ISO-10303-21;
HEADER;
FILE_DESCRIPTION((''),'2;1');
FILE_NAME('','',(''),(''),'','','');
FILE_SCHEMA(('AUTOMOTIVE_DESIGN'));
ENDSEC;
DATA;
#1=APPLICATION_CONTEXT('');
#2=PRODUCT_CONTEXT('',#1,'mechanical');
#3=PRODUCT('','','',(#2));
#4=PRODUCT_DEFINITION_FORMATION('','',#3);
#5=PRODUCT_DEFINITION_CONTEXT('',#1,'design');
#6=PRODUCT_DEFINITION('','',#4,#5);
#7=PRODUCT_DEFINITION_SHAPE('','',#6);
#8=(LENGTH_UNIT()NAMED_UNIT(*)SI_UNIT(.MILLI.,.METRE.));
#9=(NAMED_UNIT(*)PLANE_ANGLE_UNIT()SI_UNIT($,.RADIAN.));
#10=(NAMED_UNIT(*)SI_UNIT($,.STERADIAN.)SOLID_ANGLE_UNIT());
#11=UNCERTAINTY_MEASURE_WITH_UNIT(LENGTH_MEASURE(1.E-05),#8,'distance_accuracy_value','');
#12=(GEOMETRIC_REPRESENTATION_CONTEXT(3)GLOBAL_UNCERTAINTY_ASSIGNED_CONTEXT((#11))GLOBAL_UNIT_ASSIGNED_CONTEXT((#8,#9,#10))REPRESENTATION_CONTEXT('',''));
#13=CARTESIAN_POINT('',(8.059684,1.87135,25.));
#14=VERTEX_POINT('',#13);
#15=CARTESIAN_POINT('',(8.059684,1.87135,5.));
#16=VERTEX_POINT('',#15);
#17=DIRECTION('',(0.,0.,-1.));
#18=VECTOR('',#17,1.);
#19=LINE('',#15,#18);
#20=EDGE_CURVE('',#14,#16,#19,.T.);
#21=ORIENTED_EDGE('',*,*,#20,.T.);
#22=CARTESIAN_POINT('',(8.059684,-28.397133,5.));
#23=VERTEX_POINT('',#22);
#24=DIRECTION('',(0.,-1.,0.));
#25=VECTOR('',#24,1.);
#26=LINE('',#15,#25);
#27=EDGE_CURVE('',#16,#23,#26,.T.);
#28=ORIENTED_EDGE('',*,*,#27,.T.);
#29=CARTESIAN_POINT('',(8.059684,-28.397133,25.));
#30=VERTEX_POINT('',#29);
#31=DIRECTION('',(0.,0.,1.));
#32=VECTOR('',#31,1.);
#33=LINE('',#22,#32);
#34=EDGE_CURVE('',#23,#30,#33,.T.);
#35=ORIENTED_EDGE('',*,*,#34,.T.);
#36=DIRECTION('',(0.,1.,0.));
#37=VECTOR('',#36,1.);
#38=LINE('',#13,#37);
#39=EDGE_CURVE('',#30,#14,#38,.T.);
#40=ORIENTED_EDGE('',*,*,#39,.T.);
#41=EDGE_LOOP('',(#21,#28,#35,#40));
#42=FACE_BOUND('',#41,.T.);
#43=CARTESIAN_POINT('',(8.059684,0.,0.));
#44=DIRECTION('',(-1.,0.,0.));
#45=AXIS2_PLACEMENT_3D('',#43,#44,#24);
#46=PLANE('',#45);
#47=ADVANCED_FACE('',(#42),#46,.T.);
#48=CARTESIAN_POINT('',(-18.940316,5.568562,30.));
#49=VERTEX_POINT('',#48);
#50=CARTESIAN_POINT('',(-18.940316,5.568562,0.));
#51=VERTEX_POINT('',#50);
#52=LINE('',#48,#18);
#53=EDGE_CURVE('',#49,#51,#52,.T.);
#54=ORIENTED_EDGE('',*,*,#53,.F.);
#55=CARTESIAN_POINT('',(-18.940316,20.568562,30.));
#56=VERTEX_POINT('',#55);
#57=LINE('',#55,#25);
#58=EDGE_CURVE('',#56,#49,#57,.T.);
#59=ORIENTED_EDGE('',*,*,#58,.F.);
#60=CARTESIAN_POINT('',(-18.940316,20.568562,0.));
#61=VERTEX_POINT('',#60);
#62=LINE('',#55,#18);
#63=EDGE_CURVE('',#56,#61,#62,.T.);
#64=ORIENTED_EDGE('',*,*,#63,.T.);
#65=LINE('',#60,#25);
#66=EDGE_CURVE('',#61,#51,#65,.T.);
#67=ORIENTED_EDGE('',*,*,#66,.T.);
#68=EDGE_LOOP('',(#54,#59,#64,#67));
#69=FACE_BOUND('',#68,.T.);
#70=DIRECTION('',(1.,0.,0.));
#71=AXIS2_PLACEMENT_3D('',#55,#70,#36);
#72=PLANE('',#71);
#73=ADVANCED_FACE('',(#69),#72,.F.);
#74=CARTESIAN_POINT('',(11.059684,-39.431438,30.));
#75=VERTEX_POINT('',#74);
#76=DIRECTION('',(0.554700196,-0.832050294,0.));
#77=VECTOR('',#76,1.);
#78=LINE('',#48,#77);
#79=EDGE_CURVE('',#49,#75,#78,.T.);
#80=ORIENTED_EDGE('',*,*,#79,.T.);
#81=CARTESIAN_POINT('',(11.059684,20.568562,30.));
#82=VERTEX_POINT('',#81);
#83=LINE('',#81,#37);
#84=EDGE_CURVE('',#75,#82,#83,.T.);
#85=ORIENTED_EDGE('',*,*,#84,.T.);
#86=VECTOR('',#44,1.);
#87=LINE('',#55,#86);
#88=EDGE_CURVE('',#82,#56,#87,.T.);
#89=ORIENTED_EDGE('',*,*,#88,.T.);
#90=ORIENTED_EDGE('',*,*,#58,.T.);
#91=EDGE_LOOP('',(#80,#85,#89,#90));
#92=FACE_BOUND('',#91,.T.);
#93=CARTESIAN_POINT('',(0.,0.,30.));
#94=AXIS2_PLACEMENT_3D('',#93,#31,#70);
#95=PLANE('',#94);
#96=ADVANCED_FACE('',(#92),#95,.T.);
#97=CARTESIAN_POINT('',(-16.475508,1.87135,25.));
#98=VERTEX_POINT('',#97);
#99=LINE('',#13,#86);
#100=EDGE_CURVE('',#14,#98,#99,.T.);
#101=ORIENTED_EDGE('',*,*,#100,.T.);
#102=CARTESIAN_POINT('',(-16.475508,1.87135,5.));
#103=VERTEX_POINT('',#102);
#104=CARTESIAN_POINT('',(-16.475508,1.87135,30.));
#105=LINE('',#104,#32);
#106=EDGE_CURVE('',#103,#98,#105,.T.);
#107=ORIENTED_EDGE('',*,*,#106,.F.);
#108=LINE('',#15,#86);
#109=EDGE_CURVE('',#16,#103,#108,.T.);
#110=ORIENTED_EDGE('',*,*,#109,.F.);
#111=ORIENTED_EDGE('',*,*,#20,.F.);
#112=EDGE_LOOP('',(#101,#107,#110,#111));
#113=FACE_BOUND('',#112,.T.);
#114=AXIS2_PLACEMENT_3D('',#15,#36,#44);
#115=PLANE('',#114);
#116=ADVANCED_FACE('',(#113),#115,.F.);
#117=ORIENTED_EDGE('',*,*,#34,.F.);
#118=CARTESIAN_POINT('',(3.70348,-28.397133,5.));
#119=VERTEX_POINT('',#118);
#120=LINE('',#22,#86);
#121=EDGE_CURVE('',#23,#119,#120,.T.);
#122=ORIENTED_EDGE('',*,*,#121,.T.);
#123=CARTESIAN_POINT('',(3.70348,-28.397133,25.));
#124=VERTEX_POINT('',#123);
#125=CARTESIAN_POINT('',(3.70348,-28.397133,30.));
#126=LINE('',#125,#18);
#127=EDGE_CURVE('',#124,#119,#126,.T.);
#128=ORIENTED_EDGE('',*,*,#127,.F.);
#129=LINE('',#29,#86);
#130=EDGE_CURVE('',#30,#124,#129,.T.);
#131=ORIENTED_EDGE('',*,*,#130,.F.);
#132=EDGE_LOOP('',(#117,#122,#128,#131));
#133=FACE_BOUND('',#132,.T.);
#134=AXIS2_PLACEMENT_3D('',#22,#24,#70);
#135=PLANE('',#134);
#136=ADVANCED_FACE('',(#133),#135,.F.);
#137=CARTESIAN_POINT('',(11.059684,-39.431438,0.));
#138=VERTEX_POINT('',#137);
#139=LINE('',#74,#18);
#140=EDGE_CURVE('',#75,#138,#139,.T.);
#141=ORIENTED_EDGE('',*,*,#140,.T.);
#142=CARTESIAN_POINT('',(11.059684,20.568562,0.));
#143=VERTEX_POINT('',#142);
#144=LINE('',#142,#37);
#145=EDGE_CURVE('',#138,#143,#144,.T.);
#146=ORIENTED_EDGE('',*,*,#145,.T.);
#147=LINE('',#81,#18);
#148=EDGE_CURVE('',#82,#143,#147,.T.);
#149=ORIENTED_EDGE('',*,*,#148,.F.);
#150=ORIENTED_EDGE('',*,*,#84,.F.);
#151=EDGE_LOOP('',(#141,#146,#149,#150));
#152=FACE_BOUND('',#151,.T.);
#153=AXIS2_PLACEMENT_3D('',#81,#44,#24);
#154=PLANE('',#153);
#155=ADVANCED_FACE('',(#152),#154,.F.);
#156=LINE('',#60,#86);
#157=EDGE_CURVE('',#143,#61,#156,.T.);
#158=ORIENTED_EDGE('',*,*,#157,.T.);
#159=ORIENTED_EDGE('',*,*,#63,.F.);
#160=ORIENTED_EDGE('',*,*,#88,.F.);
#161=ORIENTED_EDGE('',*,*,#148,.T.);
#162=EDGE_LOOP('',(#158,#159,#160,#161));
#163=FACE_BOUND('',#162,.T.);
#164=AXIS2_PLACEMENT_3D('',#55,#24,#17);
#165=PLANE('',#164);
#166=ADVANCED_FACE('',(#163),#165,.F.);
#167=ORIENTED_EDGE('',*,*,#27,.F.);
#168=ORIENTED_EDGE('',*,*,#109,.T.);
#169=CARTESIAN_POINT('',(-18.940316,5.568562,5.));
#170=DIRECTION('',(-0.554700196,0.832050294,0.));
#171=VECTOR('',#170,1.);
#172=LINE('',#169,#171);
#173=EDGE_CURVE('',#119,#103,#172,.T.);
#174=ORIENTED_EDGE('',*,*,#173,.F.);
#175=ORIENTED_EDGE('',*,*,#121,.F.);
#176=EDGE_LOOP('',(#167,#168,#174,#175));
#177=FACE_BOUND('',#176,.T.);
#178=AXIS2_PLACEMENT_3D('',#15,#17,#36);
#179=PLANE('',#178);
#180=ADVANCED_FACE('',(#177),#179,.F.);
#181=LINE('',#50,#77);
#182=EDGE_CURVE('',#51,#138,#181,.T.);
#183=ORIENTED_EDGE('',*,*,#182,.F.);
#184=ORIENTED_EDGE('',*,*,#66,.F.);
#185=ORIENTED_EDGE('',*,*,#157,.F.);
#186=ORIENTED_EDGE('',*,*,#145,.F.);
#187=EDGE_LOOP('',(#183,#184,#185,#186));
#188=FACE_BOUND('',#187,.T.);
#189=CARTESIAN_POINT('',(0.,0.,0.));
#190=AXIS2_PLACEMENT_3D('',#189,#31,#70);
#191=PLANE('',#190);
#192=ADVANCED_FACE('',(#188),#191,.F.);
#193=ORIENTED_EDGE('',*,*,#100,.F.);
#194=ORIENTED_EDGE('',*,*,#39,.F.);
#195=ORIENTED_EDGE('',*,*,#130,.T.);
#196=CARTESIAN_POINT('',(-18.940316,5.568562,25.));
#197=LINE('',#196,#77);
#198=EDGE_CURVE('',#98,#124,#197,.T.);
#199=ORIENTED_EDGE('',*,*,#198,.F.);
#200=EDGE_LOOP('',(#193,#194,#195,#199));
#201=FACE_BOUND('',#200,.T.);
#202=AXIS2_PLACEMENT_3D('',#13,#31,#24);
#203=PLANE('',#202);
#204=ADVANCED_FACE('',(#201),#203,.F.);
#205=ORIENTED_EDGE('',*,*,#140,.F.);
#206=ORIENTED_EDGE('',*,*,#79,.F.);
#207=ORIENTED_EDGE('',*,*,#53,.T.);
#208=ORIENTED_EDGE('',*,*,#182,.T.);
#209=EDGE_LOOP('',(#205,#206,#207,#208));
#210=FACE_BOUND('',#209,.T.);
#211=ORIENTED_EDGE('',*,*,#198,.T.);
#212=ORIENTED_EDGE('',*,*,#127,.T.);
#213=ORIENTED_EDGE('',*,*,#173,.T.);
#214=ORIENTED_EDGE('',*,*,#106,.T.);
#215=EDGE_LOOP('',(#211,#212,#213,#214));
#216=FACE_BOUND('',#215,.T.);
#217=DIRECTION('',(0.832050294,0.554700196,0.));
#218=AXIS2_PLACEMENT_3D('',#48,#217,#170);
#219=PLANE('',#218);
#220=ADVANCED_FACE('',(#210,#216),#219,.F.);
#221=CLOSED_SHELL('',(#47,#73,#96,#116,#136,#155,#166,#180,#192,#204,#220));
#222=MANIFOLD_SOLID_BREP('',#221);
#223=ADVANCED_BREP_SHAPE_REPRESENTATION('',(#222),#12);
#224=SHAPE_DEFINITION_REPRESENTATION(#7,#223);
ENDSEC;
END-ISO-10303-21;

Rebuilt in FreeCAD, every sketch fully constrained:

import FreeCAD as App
import Part
import Sketcher


def add_polygon(sketch, points):
    """Adds a closed chain of lines whose ends are joined by coincident constraints."""
    first, n = sketch.GeometryCount, len(points)
    for a, b in zip(points, points[1:] + points[:1]):
        sketch.addGeometry(Part.LineSegment(App.Vector(*a, 0), App.Vector(*b, 0)), False)
    for i in range(n):
        sketch.addConstraint(Sketcher.Constraint("Coincident", first + i, 2, first + (i + 1) % n, 1))

doc = App.newDocument("Part")
body = doc.addObject("PartDesign::Body", "Body")

# Sketch on XY plane
sketch1 = doc.addObject("Sketcher::SketchObject", "Sketch")
body.addObject(sketch1)
sketch1.AttachmentSupport = (doc.XY_Plane, [""])
sketch1.MapMode = "FlatFace"
add_polygon(sketch1, [(-19, 6), (11, -39), (11, 21), (-19, 21)])  # lines 0-3
sketch1.addConstraint([
    Sketcher.Constraint("Vertical", 1),
    Sketcher.Constraint("Horizontal", 2),
    Sketcher.Constraint("Vertical", 3),
    Sketcher.Constraint("DistanceX", 2, 2, 2, 1, 30.0),
    Sketcher.Constraint("DistanceY", 1, 1, 1, 2, 60.0),
    Sketcher.Constraint("DistanceY", 3, 2, 3, 1, 15.0),
    Sketcher.Constraint("DistanceY", 0, 2, -1, 1, 39.431438),
    Sketcher.Constraint("DistanceX", -1, 1, 0, 2, 11.059684),
])
pad1 = doc.addObject("PartDesign::Pad", "Pad")
body.addObject(pad1)
pad1.Profile = sketch1
pad1.Length = 30

# Sketch on YZ plane
sketch2 = doc.addObject("Sketcher::SketchObject", "Sketch001")
body.addObject(sketch2)
sketch2.AttachmentSupport = (doc.YZ_Plane, [""])
sketch2.MapMode = "FlatFace"
sketch2.AttachmentOffset = App.Placement(App.Vector(0, 0, -18.940316), App.Rotation())
add_polygon(sketch2, [(2, 5), (-28, 5), (-28, 25), (2, 25)])  # lines 0-3
sketch2.addConstraint([
    Sketcher.Constraint("Horizontal", 0),
    Sketcher.Constraint("Vertical", 1),
    Sketcher.Constraint("Horizontal", 2),
    Sketcher.Constraint("Vertical", 3),
    Sketcher.Constraint("DistanceY", 1, 1, 1, 2, 20.0),
    Sketcher.Constraint("DistanceY", -1, 1, 0, 2, 5.0),
    Sketcher.Constraint("DistanceX", 0, 2, 0, 1, 30.268483),
    Sketcher.Constraint("DistanceX", -1, 1, 2, 2, 1.87135),
])
pocket1 = doc.addObject("PartDesign::Pocket", "Pocket")
body.addObject(pocket1)
pocket1.Profile = sketch2
pocket1.Length = 27
pocket1.Reversed = True

doc.recompute()
